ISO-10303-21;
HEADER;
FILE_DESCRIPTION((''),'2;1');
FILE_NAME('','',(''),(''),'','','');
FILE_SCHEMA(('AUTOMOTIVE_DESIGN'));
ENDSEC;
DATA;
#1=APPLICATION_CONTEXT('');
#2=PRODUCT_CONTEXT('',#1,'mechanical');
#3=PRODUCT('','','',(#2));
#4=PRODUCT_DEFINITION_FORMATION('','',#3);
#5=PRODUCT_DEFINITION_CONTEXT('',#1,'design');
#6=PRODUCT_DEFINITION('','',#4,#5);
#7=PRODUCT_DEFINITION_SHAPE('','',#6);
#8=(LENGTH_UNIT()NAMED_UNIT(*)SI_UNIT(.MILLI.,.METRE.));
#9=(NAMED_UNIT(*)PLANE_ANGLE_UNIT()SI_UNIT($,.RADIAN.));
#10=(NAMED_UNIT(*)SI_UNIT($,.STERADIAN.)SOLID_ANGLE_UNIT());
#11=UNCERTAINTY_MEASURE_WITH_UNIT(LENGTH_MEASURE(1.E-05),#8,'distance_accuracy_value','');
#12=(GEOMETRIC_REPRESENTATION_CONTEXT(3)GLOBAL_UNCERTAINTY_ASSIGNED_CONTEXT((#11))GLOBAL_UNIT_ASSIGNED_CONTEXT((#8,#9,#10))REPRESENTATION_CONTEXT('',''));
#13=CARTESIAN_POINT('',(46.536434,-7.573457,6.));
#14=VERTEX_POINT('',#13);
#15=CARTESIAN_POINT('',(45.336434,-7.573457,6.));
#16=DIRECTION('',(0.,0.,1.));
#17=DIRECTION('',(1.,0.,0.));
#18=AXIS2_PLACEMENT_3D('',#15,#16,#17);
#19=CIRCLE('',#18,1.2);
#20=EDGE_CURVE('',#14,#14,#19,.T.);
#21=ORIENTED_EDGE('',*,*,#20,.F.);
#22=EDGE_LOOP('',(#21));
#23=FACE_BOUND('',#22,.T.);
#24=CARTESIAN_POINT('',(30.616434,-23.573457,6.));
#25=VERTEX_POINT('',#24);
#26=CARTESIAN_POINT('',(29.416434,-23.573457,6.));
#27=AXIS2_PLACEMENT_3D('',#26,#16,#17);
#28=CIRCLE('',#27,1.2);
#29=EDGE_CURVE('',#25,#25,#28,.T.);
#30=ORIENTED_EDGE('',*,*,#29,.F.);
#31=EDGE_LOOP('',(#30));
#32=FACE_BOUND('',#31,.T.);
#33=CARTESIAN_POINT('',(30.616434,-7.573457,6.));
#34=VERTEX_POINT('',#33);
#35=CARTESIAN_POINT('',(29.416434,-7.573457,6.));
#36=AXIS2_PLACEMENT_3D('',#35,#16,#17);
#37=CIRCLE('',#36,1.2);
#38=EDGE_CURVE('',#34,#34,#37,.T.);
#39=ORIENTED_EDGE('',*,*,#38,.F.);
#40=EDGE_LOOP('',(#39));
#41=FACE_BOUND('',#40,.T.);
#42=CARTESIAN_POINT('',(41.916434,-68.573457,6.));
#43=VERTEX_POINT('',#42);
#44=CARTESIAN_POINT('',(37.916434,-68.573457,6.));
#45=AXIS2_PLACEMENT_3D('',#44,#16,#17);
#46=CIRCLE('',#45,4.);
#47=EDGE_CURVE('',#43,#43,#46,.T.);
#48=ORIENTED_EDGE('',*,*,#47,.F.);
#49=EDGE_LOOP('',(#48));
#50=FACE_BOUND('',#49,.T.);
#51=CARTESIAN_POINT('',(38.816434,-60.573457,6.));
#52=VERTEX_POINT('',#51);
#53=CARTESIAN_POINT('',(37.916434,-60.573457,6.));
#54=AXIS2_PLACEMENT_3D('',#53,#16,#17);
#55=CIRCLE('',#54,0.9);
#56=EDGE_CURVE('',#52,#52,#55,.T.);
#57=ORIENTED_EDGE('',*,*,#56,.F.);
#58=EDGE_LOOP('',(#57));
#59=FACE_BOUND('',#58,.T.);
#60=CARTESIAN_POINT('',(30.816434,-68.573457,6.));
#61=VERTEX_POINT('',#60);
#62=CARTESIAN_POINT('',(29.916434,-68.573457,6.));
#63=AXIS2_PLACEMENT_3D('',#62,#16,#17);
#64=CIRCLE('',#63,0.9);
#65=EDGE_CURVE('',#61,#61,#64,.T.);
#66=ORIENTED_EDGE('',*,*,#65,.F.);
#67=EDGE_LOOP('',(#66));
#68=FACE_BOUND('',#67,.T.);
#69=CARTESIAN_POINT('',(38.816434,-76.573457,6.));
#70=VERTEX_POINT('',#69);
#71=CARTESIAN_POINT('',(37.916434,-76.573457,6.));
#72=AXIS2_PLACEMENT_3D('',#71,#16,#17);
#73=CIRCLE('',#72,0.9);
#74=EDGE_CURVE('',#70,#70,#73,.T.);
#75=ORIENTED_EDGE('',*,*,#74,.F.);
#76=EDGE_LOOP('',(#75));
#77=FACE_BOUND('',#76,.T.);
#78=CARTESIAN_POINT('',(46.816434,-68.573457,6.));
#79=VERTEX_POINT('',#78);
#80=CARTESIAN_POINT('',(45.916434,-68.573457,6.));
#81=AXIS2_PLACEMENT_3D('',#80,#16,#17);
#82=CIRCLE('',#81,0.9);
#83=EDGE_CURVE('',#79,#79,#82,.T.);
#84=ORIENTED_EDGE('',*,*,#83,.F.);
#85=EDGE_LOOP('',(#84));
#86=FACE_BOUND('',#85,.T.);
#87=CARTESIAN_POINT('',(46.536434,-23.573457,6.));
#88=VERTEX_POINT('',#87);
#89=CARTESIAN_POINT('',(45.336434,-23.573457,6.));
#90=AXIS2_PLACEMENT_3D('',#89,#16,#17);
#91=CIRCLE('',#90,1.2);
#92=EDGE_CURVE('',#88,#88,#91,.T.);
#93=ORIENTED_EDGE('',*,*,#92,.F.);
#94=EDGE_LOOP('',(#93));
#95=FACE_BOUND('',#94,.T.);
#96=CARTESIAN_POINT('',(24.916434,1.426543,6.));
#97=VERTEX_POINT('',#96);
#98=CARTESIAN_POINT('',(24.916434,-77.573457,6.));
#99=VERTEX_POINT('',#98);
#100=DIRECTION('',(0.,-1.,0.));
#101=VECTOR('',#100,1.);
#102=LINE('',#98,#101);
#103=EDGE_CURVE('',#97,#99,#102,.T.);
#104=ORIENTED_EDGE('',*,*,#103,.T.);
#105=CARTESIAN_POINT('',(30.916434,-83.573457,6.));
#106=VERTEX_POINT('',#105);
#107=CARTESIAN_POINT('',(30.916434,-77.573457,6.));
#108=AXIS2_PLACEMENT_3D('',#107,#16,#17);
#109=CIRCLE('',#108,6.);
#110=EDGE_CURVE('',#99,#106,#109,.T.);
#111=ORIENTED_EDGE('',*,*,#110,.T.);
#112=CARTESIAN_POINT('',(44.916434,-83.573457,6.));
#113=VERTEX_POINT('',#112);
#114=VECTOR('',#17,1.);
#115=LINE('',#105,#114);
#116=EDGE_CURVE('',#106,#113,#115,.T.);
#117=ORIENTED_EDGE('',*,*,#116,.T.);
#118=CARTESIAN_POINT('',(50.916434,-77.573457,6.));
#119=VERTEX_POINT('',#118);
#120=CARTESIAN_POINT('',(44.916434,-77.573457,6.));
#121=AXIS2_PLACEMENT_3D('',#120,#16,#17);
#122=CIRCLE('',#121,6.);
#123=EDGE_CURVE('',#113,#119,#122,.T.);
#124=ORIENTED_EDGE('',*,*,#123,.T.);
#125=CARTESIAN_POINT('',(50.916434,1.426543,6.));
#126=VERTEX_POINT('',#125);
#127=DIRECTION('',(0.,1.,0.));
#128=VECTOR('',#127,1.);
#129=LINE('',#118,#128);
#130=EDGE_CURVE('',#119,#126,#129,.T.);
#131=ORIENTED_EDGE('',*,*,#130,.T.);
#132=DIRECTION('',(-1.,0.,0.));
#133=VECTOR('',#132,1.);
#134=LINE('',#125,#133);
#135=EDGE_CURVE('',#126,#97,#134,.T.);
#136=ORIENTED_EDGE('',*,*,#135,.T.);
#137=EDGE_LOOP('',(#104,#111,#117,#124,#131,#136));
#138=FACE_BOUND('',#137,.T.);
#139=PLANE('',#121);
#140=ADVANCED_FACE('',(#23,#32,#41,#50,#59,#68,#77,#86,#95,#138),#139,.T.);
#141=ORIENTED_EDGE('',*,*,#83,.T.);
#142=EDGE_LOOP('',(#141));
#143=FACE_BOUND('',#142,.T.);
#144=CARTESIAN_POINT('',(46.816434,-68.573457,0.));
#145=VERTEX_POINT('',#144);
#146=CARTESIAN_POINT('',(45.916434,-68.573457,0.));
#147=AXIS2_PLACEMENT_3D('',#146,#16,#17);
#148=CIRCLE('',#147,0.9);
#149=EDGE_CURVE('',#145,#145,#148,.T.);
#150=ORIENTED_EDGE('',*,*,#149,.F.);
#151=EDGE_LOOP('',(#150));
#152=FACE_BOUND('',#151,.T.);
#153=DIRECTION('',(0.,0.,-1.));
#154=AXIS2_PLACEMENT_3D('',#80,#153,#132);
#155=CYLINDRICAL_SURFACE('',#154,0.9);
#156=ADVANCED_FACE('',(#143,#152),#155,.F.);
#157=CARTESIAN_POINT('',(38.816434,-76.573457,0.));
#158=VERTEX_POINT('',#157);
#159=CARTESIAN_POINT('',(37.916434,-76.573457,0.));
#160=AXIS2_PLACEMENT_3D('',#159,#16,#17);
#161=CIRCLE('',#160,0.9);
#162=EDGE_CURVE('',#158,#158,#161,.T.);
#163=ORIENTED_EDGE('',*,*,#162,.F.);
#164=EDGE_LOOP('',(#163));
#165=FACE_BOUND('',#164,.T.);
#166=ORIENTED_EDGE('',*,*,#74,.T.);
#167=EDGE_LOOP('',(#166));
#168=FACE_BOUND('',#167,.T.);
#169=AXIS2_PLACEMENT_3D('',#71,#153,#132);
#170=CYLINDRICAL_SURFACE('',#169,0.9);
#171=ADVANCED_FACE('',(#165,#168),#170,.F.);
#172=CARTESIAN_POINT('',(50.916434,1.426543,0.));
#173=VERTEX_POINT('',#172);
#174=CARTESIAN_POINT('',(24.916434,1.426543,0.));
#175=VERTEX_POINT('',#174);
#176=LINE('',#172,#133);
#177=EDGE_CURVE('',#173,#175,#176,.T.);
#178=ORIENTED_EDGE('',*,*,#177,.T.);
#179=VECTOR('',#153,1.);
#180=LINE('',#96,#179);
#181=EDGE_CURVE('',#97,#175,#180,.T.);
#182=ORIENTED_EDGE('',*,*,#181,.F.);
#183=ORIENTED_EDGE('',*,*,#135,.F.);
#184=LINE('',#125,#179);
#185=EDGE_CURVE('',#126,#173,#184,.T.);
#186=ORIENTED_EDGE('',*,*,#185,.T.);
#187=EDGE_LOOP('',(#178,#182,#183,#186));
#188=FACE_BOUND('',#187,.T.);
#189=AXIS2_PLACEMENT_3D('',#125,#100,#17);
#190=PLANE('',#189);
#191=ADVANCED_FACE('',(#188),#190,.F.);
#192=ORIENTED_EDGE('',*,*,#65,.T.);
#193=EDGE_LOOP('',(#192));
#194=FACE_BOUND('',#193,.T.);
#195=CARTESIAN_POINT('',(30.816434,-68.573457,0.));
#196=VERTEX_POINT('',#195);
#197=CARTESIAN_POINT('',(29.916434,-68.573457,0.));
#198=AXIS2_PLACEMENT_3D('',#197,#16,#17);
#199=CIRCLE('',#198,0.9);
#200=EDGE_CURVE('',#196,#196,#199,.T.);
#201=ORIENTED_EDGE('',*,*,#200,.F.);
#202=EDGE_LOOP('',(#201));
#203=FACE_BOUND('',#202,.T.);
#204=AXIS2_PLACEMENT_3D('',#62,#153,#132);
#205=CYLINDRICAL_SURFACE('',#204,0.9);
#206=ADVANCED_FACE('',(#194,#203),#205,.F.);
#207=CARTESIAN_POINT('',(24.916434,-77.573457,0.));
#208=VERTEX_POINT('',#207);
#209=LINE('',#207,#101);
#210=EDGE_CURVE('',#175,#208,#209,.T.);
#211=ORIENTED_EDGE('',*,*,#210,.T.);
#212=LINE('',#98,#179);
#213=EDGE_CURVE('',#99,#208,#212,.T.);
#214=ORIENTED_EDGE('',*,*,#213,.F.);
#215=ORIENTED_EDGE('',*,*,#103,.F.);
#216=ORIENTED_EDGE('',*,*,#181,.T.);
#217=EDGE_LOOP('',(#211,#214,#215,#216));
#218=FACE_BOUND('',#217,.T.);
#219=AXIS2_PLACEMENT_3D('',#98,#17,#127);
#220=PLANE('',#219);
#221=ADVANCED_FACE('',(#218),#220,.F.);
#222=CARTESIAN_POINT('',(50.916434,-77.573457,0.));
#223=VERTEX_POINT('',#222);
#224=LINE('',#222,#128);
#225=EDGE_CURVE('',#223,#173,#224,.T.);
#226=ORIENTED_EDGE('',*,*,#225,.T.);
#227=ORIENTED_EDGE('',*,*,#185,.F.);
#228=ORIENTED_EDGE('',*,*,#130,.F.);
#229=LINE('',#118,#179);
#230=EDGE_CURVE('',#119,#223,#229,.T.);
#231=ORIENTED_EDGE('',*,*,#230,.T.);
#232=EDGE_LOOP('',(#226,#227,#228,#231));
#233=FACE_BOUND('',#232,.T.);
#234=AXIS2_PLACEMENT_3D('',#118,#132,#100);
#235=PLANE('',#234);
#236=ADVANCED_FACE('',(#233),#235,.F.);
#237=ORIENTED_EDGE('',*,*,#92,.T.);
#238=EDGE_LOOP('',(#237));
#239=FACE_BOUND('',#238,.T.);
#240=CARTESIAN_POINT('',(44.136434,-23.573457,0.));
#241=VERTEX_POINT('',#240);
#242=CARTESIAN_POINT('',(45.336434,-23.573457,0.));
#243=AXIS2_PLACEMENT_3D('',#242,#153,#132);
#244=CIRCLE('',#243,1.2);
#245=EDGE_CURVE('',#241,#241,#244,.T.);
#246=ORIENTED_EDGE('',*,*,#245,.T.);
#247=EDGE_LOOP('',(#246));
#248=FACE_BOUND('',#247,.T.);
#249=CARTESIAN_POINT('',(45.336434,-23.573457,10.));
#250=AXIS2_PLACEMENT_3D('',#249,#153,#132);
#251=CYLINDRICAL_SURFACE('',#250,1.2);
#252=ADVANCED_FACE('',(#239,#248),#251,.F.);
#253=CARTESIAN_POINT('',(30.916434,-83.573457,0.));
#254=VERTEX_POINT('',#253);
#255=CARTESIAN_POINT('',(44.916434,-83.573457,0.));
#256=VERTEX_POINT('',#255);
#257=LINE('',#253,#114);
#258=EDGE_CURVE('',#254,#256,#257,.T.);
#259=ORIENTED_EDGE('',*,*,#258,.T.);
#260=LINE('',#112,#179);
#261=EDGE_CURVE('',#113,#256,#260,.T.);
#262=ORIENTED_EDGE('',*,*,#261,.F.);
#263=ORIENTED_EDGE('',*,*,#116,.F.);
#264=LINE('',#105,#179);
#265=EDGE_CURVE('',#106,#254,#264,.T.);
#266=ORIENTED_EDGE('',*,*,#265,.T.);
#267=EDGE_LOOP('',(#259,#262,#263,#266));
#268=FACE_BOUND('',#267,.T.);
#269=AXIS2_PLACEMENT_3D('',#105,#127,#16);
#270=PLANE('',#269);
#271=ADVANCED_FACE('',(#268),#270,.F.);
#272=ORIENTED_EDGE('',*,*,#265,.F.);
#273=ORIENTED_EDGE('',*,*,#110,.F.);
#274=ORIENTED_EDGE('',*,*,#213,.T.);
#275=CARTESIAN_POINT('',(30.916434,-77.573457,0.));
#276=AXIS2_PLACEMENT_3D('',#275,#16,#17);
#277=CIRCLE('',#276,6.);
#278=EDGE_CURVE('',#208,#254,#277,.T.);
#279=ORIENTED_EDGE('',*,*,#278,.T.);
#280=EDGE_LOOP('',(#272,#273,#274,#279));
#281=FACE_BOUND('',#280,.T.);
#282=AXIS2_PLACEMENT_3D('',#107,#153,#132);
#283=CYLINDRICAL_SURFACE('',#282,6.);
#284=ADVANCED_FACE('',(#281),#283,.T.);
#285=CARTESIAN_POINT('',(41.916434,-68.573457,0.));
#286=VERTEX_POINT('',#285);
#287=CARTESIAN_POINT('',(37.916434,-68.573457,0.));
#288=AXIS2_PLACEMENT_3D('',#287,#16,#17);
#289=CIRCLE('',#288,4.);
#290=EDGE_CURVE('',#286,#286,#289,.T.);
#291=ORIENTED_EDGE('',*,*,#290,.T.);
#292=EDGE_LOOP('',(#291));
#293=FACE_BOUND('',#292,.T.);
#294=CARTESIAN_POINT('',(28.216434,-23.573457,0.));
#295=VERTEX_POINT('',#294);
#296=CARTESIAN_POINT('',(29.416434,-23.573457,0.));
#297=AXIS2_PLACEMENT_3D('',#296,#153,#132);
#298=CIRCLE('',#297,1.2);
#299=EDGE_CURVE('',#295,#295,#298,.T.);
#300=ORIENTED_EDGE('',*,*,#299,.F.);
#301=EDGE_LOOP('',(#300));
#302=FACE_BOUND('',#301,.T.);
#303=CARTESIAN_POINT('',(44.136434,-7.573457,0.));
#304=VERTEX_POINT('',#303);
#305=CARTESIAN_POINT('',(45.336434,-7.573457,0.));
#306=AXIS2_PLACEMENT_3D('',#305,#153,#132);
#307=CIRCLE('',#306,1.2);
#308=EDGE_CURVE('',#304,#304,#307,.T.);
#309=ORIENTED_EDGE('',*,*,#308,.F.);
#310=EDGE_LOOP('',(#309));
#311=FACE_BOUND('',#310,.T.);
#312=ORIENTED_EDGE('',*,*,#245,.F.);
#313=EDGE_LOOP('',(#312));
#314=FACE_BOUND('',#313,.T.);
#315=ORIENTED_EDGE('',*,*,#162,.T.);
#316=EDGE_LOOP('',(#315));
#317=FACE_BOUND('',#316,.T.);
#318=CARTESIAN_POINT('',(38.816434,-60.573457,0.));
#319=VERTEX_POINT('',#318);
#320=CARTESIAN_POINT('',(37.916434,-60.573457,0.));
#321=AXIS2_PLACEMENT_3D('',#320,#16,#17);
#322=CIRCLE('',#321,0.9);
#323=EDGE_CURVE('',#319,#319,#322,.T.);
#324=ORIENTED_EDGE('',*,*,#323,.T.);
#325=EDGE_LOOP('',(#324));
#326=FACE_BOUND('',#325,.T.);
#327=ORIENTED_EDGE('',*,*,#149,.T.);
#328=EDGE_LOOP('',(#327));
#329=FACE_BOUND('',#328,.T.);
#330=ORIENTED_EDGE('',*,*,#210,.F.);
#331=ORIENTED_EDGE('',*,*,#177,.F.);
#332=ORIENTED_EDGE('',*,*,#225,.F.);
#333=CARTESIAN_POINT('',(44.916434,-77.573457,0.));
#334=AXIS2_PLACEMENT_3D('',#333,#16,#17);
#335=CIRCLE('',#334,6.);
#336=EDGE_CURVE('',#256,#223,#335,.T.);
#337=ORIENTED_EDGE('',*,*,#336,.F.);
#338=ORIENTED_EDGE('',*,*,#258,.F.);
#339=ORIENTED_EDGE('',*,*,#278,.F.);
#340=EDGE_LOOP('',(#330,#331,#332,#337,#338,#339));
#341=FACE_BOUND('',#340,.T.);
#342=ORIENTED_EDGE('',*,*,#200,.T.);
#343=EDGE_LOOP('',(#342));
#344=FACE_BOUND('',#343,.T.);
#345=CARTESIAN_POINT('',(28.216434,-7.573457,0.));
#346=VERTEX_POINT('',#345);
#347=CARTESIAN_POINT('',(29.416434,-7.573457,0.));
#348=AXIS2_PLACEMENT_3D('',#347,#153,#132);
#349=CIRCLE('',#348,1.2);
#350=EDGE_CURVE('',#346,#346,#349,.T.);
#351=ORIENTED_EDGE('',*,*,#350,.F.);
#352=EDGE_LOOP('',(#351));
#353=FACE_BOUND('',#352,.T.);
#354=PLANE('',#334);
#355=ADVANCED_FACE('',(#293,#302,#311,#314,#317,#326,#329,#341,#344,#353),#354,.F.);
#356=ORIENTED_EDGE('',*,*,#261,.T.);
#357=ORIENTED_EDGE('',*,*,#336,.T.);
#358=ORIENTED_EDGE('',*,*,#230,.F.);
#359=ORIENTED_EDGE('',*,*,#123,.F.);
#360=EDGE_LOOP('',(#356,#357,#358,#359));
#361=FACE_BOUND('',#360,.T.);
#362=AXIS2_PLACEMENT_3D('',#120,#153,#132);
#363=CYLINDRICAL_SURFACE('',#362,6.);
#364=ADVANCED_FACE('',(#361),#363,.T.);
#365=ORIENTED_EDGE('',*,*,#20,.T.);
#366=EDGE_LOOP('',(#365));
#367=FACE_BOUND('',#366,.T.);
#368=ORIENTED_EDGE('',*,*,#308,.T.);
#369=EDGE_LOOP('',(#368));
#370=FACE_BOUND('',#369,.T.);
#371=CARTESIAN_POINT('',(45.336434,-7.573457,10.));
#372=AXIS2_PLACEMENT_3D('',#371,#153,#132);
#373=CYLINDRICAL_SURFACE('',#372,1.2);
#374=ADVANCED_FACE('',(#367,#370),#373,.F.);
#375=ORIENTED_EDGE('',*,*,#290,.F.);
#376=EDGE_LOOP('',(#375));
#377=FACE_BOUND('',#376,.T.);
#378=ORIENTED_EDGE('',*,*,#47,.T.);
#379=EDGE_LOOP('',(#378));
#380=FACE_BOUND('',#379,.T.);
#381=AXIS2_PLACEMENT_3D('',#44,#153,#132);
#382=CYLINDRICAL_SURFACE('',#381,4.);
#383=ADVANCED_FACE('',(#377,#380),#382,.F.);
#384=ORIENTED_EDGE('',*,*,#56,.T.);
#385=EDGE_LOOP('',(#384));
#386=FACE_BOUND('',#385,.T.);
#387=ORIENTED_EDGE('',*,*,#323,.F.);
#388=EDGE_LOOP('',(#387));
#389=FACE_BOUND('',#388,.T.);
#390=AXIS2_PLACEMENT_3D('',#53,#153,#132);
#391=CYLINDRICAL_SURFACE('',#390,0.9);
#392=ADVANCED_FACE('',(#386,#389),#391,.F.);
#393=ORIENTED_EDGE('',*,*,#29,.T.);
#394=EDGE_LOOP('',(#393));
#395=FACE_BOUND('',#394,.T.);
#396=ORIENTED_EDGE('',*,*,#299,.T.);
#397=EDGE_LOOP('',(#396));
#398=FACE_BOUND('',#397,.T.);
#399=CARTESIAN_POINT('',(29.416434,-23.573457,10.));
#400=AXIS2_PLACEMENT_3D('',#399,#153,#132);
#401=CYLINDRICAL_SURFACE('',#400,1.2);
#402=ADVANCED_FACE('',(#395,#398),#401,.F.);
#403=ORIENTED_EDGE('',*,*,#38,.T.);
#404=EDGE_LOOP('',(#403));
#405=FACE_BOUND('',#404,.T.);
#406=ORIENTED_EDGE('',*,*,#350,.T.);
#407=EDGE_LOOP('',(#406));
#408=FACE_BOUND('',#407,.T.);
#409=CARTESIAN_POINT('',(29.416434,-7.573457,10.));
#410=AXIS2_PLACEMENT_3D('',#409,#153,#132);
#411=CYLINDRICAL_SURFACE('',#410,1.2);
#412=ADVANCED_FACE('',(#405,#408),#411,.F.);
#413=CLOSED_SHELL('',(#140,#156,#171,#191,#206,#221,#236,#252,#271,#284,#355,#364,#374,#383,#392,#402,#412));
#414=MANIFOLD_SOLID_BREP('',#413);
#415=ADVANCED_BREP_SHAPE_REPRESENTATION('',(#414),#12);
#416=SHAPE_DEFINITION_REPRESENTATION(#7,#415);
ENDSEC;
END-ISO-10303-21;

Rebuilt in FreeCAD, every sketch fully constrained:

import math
import FreeCAD as App
import Part
import Sketcher

V = App.Vector

doc = App.newDocument("Part")
params = doc.addObject("Spreadsheet::Sheet", "Params")
for row, (alias, value) in enumerate([
    ("sketch1_diameter", "8 mm"),
    ("sketch1_radius", "6 mm"),
    ("sketch1_diameter2", "1.8 mm"),
    ("sketch1_width", "14 mm"),
    ("sketch1_height", "79 mm"),
    ("pad1_length", "6 mm"),
    ("sketch2_diameter", "2.4 mm"),
    ("pocket1_length", "10 mm"),
], start=1):
    params.set(f"A{row}", alias)
    params.set(f"B{row}", "=" + value)
    params.setAlias(f"B{row}", alias)

body = doc.addObject("PartDesign::Body", "Body")

# Sketch on XY plane
sketch1 = body.newObject("Sketcher::SketchObject", "Sketch")
sketch1.AttachmentSupport = (doc.getObject("XY_Plane"), [""])
sketch1.MapMode = "FlatFace"
sketch1.addGeometry(Part.LineSegment(V(24.9, 1.4, 0), V(24.9, -77.6, 0)), False)
sketch1.addGeometry(Part.ArcOfCircle(Part.Circle(V(30.9, -77.6, 0), V(0, 0, 1), 6), math.radians(180), math.radians(270)), False)
sketch1.addGeometry(Part.LineSegment(V(30.9, -83.6, 0), V(44.9, -83.6, 0)), False)
sketch1.addGeometry(Part.ArcOfCircle(Part.Circle(V(44.9, -77.6, 0), V(0, 0, 1), 6), math.radians(-90), math.radians(0)), False)
sketch1.addGeometry(Part.LineSegment(V(50.9, -77.6, 0), V(50.9, 1.4, 0)), False)
sketch1.addGeometry(Part.LineSegment(V(50.9, 1.4, 0), V(24.9, 1.4, 0)), False)
sketch1.addGeometry(Part.Circle(V(37.9, -76.6, 0), V(0, 0, 1), 0.9), False)
sketch1.addGeometry(Part.Circle(V(45.9, -68.6, 0), V(0, 0, 1), 0.9), False)
sketch1.addGeometry(Part.Circle(V(37.9, -68.6, 0), V(0, 0, 1), 4), False)
sketch1.addGeometry(Part.Circle(V(37.9, -60.6, 0), V(0, 0, 1), 0.9), False)
sketch1.addGeometry(Part.Circle(V(29.9, -68.6, 0), V(0, 0, 1), 0.9), False)
sketch1.addConstraint(Sketcher.Constraint("Tangent", 0, 2, 1, 1))
sketch1.addConstraint(Sketcher.Constraint("Tangent", 1, 2, 2, 1))
sketch1.addConstraint(Sketcher.Constraint("Tangent", 2, 2, 3, 1))
sketch1.addConstraint(Sketcher.Constraint("Tangent", 3, 2, 4, 1))
sketch1.addConstraint(Sketcher.Constraint("Coincident", 4, 2, 5, 1))
sketch1.addConstraint(Sketcher.Constraint("Coincident", 5, 2, 0, 1))
sketch1.addConstraint(Sketcher.Constraint("Vertical", 0))
sketch1.addConstraint(Sketcher.Constraint("Horizontal", 2))
sketch1.addConstraint(Sketcher.Constraint("Vertical", 4))
sketch1.addConstraint(Sketcher.Constraint("Horizontal", 5))
sketch1.addConstraint(Sketcher.Constraint("Equal", 1, 3))
sketch1.addConstraint(Sketcher.Constraint("Equal", 6, 7))
sketch1.addConstraint(Sketcher.Constraint("Equal", 7, 9))
sketch1.addConstraint(Sketcher.Constraint("Equal", 9, 10))
sketch1.addConstraint(Sketcher.Constraint("Horizontal", 7, 3, 8, 3))
sketch1.addConstraint(Sketcher.Constraint("Horizontal", 8, 3, 10, 3))
sketch1.addConstraint(Sketcher.Constraint("Vertical", 6, 3, 8, 3))
sketch1.addConstraint(Sketcher.Constraint("Vertical", 8, 3, 9, 3))
sketch1.addConstraint(Sketcher.Constraint("Diameter", 8, 8.0))
sketch1.addConstraint(Sketcher.Constraint("Radius", 1, 6.0))
sketch1.addConstraint(Sketcher.Constraint("Diameter", 6, 1.8))
sketch1.addConstraint(Sketcher.Constraint("DistanceX", 2, 1, 2, 2, 14.0))
sketch1.addConstraint(Sketcher.Constraint("DistanceY", 0, 2, 0, 1, 79.0))
sketch1.addConstraint(Sketcher.Constraint("DistanceX", 1, 3, 6, 3, 7.0))
sketch1.addConstraint(Sketcher.Constraint("DistanceY", 1, 3, 6, 3, 1.0))
sketch1.addConstraint(Sketcher.Constraint("DistanceX", 3, 3, 7, 3, 1.0))
sketch1.addConstraint(Sketcher.Constraint("DistanceY", 3, 3, 7, 3, 9.0))
sketch1.addConstraint(Sketcher.Constraint("DistanceY", 8, 3, 9, 3, 8.0))
sketch1.addConstraint(Sketcher.Constraint("DistanceX", 10, 3, 8, 3, 8.0))
sketch1.addConstraint(Sketcher.Constraint("DistanceX", -1, 1, 1, 3, 30.916434))
sketch1.addConstraint(Sketcher.Constraint("DistanceY", 1, 3, -1, 1, 77.573457))
sketch1.setExpression("Constraints[18]", "Params.sketch1_diameter")
sketch1.setExpression("Constraints[19]", "Params.sketch1_radius")
sketch1.setExpression("Constraints[20]", "Params.sketch1_diameter2")
sketch1.setExpression("Constraints[21]", "Params.sketch1_width")
sketch1.setExpression("Constraints[22]", "Params.sketch1_height")
pad1 = body.newObject("PartDesign::Pad", "Pad")
pad1.Profile = sketch1
pad1.setExpression("Length", "Params.pad1_length")

# Sketch on XY plane
sketch2 = body.newObject("Sketcher::SketchObject", "Sketch001")
sketch2.AttachmentSupport = (doc.getObject("XY_Plane"), [""])
sketch2.MapMode = "FlatFace"
sketch2.addGeometry(Part.Circle(V(45.3, -7.6, 0), V(0, 0, 1), 1.2), False)
sketch2.addGeometry(Part.Circle(V(29.4, -7.6, 0), V(0, 0, 1), 1.2), False)
sketch2.addGeometry(Part.Circle(V(45.3, -23.6, 0), V(0, 0, 1), 1.2), False)
sketch2.addGeometry(Part.Circle(V(29.4, -23.6, 0), V(0, 0, 1), 1.2), False)
sketch2.addConstraint(Sketcher.Constraint("Equal", 0, 1))
sketch2.addConstraint(Sketcher.Constraint("Equal", 1, 2))
sketch2.addConstraint(Sketcher.Constraint("Equal", 2, 3))
sketch2.addConstraint(Sketcher.Constraint("Horizontal", 0, 3, 1, 3))
sketch2.addConstraint(Sketcher.Constraint("Horizontal", 2, 3, 3, 3))
sketch2.addConstraint(Sketcher.Constraint("Vertical", 0, 3, 2, 3))
sketch2.addConstraint(Sketcher.Constraint("Vertical", 1, 3, 3, 3))
sketch2.addConstraint(Sketcher.Constraint("Diameter", 0, 2.4))
sketch2.addConstraint(Sketcher.Constraint("DistanceY", 2, 3, 0, 3, 16.0))
sketch2.addConstraint(Sketcher.Constraint("DistanceX", 1, 3, 0, 3, 15.92))
sketch2.addConstraint(Sketcher.Constraint("DistanceX", -1, 1, 0, 3, 45.336434))
sketch2.addConstraint(Sketcher.Constraint("DistanceY", 0, 3, -1, 1, 7.573457))
sketch2.setExpression("Constraints[7]", "Params.sketch2_diameter")
pocket1 = body.newObject("PartDesign::Pocket", "Pocket")
pocket1.Profile = sketch2
pocket1.setExpression("Length", "Params.pocket1_length")
pocket1.Reversed = True

doc.recompute()
